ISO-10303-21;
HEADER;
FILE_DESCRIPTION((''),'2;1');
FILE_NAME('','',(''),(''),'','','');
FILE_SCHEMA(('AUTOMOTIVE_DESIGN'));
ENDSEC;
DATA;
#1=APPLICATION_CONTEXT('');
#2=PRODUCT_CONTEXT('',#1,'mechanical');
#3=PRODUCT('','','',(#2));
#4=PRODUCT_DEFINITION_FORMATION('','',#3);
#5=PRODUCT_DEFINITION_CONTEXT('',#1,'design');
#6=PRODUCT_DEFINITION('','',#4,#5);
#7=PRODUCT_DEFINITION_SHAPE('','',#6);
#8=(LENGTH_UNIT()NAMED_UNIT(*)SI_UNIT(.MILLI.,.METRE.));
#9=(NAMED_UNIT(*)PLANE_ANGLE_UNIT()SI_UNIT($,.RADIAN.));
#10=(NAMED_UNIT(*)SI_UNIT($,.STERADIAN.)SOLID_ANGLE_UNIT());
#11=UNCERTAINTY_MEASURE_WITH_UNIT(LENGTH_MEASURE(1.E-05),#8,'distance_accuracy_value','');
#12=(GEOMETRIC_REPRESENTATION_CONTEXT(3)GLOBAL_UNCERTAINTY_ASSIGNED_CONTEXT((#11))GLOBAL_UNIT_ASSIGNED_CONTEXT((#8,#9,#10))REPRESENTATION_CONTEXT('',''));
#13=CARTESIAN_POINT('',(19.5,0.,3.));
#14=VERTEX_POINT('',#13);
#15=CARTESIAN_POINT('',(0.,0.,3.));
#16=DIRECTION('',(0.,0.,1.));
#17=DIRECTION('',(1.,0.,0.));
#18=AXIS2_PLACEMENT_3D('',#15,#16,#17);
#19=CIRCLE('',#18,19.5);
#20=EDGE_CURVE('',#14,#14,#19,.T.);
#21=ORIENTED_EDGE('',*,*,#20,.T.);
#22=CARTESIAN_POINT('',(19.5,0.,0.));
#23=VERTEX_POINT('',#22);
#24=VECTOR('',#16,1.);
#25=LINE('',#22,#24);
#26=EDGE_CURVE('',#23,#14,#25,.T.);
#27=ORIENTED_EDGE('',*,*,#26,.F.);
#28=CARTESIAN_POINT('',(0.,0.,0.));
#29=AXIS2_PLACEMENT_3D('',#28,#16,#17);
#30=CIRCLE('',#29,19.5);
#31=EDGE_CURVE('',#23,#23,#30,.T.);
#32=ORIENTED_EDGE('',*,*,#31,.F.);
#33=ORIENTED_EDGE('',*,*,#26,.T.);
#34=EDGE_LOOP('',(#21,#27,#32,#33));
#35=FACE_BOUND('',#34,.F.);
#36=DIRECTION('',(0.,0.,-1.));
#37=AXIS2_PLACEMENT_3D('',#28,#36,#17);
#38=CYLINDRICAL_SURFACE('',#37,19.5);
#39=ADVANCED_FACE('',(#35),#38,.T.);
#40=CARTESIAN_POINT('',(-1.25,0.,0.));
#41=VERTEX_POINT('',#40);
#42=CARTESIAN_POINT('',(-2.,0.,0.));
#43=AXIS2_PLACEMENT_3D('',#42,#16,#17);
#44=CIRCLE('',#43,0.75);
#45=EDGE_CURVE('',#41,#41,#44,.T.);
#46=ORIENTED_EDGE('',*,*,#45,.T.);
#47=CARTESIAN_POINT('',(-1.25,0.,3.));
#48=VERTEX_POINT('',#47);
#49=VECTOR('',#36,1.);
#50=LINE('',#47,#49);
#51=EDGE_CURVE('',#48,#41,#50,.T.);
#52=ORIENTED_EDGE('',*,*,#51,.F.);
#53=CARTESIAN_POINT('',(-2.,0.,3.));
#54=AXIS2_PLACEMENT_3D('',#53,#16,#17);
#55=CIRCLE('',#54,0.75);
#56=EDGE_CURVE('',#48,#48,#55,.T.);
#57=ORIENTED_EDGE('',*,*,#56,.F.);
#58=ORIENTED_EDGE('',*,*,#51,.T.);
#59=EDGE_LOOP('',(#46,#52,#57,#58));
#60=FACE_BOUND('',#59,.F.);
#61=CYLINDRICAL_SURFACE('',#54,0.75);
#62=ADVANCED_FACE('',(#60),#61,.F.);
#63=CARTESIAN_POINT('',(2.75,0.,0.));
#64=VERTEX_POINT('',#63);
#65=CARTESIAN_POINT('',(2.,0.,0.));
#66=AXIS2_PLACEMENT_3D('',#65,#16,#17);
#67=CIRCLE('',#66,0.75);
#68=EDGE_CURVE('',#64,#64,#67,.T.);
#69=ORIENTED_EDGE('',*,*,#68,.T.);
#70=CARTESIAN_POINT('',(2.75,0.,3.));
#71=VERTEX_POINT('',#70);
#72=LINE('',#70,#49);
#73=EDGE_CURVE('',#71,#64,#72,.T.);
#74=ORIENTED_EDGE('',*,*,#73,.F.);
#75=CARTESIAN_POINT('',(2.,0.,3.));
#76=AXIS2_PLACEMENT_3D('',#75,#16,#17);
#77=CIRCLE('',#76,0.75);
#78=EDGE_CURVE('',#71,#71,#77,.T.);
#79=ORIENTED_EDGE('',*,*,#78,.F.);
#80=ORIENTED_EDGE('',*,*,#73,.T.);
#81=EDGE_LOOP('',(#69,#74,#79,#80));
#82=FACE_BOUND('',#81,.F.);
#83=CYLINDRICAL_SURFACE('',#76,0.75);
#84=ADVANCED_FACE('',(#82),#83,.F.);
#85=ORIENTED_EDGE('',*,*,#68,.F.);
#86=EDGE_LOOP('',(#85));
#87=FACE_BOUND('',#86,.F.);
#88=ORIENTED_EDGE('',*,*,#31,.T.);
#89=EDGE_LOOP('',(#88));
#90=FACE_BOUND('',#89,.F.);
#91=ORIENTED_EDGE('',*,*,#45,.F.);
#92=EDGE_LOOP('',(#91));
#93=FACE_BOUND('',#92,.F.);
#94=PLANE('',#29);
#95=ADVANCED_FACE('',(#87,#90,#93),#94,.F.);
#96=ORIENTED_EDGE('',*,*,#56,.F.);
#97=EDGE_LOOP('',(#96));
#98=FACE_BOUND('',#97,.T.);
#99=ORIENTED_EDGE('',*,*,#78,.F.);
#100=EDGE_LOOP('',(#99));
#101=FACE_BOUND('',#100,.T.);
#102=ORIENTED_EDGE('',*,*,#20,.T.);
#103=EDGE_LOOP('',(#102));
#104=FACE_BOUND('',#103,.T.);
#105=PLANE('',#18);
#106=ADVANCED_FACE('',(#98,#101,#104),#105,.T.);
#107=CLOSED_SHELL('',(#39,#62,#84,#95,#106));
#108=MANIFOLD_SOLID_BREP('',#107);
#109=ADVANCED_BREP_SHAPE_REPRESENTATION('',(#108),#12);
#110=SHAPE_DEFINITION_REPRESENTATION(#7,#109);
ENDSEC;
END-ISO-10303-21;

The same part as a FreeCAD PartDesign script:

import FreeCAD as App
import Part
import Sketcher
from FreeCAD import Vector
Q = App.Units.Quantity

doc = App.newDocument("Part")
body = doc.addObject("PartDesign::Body", "Body")

# Sketch on XY plane
sketch1 = doc.addObject("Sketcher::SketchObject", "Sketch")
body.addObject(sketch1)
sketch1.AttachmentSupport = (doc.XY_Plane, [""])
sketch1.MapMode = "FlatFace"
sketch1.addGeometry(Part.Circle(Vector(0, 0, 0), Vector(0, 0, 1), 20), False)
sketch1.addConstraint(Sketcher.Constraint("Coincident", 0, 3, -1, 1))
sketch1.addConstraint(Sketcher.Constraint("Diameter", 0, Q("39 mm")))
pad1 = doc.addObject("PartDesign::Pad", "Pad")
body.addObject(pad1)
pad1.Profile = sketch1
pad1.Length = 3

# Sketch on XY plane
sketch2 = doc.addObject("Sketcher::SketchObject", "Sketch001")
body.addObject(sketch2)
sketch2.AttachmentSupport = (doc.XY_Plane, [""])
sketch2.MapMode = "FlatFace"
sketch2.AttachmentOffset = App.Placement(Vector(0, 0, 3), App.Rotation())
sketch2.addGeometry(Part.Circle(Vector(2, 0, 0), Vector(0, 0, 1), 0.8), False)
sketch2.addGeometry(Part.Circle(Vector(-2, 0, 0), Vector(0, 0, 1), 0.8), False)
sketch2.addConstraint(Sketcher.Constraint("Equal", 0, 1))
sketch2.addConstraint(Sketcher.Constraint("Symmetric", 0, 3, 1, 3, -1, 1))
sketch2.addConstraint(Sketcher.Constraint("PointOnObject", 0, 3, -1))
sketch2.addConstraint(Sketcher.Constraint("Diameter", 0, Q("1.5 mm")))
sketch2.addConstraint(Sketcher.Constraint("DistanceX", -1, 1, 0, 3, Q("2 mm")))
pocket1 = doc.addObject("PartDesign::Pocket", "Pocket")
body.addObject(pocket1)
pocket1.Profile = sketch2
pocket1.Length = 25

doc.recompute()
